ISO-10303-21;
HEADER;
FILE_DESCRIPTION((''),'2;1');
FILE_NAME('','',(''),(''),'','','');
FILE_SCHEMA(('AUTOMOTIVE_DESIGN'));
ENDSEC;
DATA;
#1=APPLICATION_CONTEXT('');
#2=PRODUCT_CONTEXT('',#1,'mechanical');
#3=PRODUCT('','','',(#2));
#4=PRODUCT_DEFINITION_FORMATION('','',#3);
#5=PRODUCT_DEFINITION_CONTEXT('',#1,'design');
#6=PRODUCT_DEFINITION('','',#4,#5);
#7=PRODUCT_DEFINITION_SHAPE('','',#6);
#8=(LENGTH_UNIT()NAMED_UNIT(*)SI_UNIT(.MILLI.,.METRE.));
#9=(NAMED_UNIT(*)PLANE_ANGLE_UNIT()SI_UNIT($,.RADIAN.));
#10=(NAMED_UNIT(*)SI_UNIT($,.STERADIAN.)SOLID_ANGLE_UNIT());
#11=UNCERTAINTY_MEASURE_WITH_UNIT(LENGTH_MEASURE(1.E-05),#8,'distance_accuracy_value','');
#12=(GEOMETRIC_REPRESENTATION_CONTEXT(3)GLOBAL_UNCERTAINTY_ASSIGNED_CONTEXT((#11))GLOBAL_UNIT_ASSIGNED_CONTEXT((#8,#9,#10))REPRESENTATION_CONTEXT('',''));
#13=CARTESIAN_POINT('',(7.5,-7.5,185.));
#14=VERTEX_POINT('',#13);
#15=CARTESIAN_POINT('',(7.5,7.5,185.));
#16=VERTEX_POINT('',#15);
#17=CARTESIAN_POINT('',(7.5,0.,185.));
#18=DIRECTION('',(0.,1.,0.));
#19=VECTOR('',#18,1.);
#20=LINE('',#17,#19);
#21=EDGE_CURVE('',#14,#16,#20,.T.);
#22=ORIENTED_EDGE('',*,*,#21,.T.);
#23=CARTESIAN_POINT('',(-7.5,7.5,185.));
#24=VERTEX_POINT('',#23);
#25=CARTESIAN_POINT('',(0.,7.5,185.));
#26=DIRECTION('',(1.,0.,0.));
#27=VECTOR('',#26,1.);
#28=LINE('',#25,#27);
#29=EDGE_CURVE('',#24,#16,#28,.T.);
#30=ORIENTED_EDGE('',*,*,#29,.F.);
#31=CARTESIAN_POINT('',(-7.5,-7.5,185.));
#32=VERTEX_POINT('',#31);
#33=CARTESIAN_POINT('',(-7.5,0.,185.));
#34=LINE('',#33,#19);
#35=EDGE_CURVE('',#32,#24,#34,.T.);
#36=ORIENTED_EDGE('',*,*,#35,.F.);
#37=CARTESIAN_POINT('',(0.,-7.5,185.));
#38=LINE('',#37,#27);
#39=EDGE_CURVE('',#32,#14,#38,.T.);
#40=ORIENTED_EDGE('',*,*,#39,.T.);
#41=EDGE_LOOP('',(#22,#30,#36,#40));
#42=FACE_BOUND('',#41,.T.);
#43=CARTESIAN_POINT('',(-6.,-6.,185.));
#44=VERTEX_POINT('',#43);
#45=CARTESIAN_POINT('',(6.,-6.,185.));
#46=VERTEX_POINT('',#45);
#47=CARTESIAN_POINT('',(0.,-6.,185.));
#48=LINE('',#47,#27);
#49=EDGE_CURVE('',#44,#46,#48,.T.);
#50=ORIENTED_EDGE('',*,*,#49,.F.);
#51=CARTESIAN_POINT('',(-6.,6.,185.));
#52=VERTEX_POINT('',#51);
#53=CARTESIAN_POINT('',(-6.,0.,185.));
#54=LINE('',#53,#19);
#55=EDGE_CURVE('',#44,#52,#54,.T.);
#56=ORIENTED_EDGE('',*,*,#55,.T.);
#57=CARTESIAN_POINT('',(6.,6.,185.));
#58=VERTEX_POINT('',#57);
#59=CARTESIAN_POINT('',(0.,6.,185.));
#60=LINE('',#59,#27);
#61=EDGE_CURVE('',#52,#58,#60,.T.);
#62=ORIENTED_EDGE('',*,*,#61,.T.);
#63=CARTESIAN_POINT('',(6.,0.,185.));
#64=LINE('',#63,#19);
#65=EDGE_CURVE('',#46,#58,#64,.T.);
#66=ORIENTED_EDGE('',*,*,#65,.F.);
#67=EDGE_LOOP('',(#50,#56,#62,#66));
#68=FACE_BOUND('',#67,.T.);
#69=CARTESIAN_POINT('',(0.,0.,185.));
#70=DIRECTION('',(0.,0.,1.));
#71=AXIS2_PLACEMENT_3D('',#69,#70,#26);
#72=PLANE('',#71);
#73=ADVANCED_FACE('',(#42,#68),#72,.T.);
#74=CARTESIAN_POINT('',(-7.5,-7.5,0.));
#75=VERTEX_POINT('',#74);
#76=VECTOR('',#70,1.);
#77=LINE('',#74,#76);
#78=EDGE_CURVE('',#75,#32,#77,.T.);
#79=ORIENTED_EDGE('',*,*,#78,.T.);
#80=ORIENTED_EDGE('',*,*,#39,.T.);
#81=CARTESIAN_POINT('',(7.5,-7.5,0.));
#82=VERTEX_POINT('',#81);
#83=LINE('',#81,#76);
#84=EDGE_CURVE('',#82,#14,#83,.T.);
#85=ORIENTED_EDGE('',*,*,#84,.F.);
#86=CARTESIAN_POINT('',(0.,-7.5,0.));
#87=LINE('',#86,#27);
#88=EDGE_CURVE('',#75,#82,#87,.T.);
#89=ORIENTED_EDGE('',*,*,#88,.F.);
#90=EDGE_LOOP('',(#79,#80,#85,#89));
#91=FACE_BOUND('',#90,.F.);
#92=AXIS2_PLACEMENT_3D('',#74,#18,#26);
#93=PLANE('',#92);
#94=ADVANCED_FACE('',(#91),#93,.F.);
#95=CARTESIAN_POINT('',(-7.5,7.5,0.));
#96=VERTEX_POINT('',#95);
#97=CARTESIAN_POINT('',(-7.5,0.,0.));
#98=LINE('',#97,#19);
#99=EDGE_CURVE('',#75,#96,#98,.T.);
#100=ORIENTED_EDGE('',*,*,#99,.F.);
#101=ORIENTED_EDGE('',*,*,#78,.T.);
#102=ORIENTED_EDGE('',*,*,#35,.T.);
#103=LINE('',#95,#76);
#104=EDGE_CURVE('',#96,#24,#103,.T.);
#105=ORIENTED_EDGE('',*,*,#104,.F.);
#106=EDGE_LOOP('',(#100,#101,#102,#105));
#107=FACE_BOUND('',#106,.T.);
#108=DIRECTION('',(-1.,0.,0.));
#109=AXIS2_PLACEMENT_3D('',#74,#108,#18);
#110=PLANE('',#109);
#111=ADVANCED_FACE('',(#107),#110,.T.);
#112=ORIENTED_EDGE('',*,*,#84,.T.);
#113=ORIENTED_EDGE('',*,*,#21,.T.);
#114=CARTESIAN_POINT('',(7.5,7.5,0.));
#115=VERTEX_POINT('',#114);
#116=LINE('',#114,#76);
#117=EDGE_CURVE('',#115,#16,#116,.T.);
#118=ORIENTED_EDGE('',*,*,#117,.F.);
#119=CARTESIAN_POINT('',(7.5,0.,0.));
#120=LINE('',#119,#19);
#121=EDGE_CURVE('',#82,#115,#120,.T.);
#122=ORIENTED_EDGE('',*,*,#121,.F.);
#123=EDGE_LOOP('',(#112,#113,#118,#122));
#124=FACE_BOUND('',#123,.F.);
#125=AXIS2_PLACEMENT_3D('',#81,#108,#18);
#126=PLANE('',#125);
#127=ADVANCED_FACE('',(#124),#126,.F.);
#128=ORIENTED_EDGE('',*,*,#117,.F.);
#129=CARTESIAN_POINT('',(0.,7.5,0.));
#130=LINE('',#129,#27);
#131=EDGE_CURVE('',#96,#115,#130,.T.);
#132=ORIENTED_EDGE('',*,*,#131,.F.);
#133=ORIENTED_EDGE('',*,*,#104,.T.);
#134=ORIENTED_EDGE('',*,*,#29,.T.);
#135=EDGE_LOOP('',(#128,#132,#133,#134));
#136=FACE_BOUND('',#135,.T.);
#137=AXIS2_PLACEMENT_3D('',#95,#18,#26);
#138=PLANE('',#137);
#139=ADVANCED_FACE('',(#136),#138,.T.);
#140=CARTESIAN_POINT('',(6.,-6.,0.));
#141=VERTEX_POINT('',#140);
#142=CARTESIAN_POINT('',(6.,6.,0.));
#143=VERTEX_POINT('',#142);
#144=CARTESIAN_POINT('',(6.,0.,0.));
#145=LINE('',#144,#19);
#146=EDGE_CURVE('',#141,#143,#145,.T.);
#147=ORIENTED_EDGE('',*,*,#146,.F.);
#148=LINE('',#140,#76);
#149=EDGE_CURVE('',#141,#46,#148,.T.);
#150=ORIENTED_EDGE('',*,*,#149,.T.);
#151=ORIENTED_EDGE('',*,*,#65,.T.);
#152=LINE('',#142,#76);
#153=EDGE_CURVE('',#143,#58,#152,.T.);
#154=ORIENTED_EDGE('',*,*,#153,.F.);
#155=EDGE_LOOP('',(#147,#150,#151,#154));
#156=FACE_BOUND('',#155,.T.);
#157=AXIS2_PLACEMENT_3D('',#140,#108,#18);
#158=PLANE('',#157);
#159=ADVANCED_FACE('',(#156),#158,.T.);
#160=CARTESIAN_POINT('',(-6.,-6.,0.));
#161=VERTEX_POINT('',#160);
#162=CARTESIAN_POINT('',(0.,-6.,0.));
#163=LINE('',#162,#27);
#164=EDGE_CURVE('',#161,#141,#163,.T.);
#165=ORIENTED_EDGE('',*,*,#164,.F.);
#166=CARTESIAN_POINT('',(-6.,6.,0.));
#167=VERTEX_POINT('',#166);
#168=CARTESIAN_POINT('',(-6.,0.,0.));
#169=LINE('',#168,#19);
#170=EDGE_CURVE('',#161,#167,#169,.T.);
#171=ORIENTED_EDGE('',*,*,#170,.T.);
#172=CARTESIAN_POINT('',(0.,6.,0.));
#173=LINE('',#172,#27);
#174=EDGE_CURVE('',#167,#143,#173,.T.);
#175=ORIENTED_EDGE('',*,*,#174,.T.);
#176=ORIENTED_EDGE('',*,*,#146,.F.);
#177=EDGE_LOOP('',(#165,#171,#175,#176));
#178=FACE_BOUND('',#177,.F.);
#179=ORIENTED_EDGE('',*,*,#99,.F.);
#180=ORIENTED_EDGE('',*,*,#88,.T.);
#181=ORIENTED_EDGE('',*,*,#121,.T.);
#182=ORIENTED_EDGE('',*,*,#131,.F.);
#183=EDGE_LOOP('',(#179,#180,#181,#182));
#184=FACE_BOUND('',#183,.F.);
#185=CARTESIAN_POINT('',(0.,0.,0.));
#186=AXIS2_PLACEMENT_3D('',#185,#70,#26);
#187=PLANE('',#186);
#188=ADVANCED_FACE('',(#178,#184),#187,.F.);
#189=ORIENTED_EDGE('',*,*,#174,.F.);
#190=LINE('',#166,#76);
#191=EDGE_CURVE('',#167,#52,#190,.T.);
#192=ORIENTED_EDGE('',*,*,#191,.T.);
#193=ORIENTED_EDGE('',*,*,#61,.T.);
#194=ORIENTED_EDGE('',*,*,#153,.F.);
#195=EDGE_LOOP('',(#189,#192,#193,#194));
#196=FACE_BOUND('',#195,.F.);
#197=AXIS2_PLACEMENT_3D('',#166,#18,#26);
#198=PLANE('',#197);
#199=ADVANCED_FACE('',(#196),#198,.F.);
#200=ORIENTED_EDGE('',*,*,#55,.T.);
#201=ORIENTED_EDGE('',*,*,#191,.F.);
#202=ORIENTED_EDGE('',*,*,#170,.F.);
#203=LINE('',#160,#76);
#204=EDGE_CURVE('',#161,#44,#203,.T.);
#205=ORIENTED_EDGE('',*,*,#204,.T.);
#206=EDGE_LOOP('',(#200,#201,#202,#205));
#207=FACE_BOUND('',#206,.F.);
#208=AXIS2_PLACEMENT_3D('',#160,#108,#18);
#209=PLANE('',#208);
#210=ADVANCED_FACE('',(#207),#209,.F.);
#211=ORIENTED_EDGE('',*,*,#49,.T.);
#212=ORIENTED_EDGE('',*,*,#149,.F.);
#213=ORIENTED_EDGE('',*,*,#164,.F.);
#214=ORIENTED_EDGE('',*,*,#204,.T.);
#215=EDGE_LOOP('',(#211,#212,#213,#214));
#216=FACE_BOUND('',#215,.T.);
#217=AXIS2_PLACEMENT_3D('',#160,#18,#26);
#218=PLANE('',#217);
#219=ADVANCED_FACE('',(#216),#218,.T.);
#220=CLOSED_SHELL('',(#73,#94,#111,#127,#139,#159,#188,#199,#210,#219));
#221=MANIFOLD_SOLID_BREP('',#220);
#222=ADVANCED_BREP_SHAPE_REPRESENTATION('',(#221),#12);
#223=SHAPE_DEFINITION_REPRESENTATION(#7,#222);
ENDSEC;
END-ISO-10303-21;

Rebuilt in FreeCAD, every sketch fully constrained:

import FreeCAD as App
import Part
import Sketcher

V = App.Vector
Q = App.Units.Quantity


def add_polygon(sketch, points):
    """Adds a closed chain of lines whose ends are joined by coincident constraints."""
    first, n = sketch.GeometryCount, len(points)
    for a, b in zip(points, points[1:] + points[:1]):
        sketch.addGeometry(Part.LineSegment(App.Vector(*a, 0), App.Vector(*b, 0)), False)
    for i in range(n):
        sketch.addConstraint(Sketcher.Constraint("Coincident", first + i, 2, first + (i + 1) % n, 1))

doc = App.newDocument("Part")
body = doc.addObject("PartDesign::Body", "Body")

# Sketch on XY plane
sketch1 = doc.addObject("Sketcher::SketchObject", "Sketch")
body.addObject(sketch1)
sketch1.AttachmentSupport = (doc.XY_Plane, [""])
sketch1.MapMode = "FlatFace"
add_polygon(sketch1, [(-8, 8), (-8, -8), (8, -8), (8, 8)])  # lines 0-3
add_polygon(sketch1, [(6, -6), (-6, -6), (-6, 6), (6, 6)])  # lines 4-7
sketch1.addConstraint([
    Sketcher.Constraint("Vertical", 0),
    Sketcher.Constraint("Horizontal", 1),
    Sketcher.Constraint("Vertical", 2),
    Sketcher.Constraint("Horizontal", 3),
    Sketcher.Constraint("Horizontal", 4),
    Sketcher.Constraint("Vertical", 5),
    Sketcher.Constraint("Horizontal", 6),
    Sketcher.Constraint("Vertical", 7),
    Sketcher.Constraint("Symmetric", 0, 2, 2, 2, -1, 1),
    Sketcher.Constraint("Symmetric", 4, 2, 6, 2, -1, 1),
    Sketcher.Constraint("Equal", 3, 0),
    Sketcher.Constraint("Equal", 6, 5),
    Sketcher.Constraint("DistanceX", 1, 1, 1, 2, Q("15 mm")),
    Sketcher.Constraint("DistanceX", 4, 2, 4, 1, Q("12 mm")),
])
pad1 = doc.addObject("PartDesign::Pad", "Pad")
body.addObject(pad1)
pad1.Profile = sketch1
pad1.Length = 185

doc.recompute()
